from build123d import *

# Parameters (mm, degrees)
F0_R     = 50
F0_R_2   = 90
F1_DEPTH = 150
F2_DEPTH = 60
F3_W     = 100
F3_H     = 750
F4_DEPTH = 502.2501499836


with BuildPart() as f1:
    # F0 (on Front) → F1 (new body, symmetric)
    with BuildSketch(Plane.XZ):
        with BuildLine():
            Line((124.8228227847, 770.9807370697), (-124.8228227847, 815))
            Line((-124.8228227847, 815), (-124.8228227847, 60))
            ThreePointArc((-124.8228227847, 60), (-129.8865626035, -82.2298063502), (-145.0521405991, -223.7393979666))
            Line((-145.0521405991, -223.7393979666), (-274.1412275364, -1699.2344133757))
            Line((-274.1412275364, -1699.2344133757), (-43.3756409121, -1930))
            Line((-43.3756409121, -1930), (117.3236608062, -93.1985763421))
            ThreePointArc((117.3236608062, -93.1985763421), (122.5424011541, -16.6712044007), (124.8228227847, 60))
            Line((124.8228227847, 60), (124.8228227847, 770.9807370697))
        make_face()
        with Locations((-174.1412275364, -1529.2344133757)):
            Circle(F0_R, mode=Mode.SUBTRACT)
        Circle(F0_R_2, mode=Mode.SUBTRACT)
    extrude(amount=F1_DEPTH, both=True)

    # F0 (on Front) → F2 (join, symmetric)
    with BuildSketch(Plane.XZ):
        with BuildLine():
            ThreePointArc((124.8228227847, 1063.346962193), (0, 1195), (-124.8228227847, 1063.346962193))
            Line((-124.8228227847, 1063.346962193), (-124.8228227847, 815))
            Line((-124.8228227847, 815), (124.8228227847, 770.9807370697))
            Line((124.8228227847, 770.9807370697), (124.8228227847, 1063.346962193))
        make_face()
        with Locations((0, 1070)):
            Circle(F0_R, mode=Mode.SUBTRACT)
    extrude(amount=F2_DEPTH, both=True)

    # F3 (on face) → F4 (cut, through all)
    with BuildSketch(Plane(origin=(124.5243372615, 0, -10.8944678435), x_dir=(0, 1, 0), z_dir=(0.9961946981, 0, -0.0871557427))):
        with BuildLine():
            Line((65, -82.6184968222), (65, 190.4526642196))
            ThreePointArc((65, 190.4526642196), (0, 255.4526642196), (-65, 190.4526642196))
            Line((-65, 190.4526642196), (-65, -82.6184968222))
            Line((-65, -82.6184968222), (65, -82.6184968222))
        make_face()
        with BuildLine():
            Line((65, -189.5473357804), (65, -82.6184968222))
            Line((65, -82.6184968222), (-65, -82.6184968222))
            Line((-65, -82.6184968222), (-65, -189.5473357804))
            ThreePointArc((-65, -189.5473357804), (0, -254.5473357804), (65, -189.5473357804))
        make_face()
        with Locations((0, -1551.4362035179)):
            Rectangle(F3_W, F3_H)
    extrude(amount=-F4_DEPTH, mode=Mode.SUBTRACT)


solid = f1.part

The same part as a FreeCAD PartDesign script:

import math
import FreeCAD as App
import Part
import Sketcher
Q = App.Units.Quantity

doc = App.newDocument("Part")
body = doc.addObject("PartDesign::Body", "Body")

sketch1 = body.newObject("Sketcher::SketchObject", "Sketch")
sketch1.AttachmentSupport = (doc.getObject("XZ_Plane"), [""])
sketch1.MapMode = "FlatFace"
sketch1.addGeometry([
    Part.LineSegment(App.Vector(125, 771, 0), App.Vector(-125, 815, 0)),
    Part.LineSegment(App.Vector(-125, 815, 0), App.Vector(-125, 60, 0)),
    Part.ArcOfCircle(Part.Circle(App.Vector(-2125, 60, 0), App.Vector(0, 0, 1), 2000), math.radians(-8.16), math.radians(0)),
    Part.LineSegment(App.Vector(-145, -224, 0), App.Vector(-274, -1699, 0)),
    Part.LineSegment(App.Vector(-274, -1699, 0), App.Vector(-43, -1930, 0)),
    Part.LineSegment(App.Vector(-43, -1930, 0), App.Vector(117, -93, 0)),
    Part.ArcOfCircle(Part.Circle(App.Vector(-1875, 81, 0), App.Vector(0, 0, 1), 2000), math.radians(-5), math.radians(-0.6)),
    Part.LineSegment(App.Vector(125, 60, 0), App.Vector(125, 771, 0)),
    Part.Circle(App.Vector(-174, -1529, 0), App.Vector(0, 0, 1), 50),
    Part.Circle(App.Vector(0, 0, 0), App.Vector(0, 0, 1), 90),
], False)
sketch1.addConstraint([
    Sketcher.Constraint("Coincident", 0, 2, 1, 1),
    Sketcher.Constraint("Coincident", 1, 2, 2, 2),
    Sketcher.Constraint("Coincident", 2, 1, 3, 1),
    Sketcher.Constraint("Coincident", 3, 2, 4, 1),
    Sketcher.Constraint("Coincident", 4, 2, 5, 1),
    Sketcher.Constraint("Coincident", 5, 2, 6, 1),
    Sketcher.Constraint("Coincident", 6, 2, 7, 1),
    Sketcher.Constraint("Coincident", 7, 2, 0, 1),
    Sketcher.Constraint("Vertical", 1),
    Sketcher.Constraint("Vertical", 7),
    Sketcher.Constraint("Coincident", 9, 3, -1, 1),
    Sketcher.Constraint("Equal", 2, 6),
    Sketcher.Constraint("Parallel", 3, 5),
    Sketcher.Constraint("Horizontal", 2, 3, 1, 2),
    Sketcher.Constraint("Diameter", 8, Q("100 mm")),
    Sketcher.Constraint("Diameter", 9, Q("180 mm")),
    Sketcher.Constraint("Radius", 2, Q("2000 mm")),
    Sketcher.Constraint("DistanceY", 1, 2, 1, 1, Q("755 mm")),
    Sketcher.Constraint("Angle", 0, Q("170 deg")),
    Sketcher.Constraint("Angle", 3, Q("-95 deg")),
    Sketcher.Constraint("Angle", 4, Q("-45 deg")),
    Sketcher.Constraint("DistanceY", -1, 1, 2, 3, Q("60 mm")),
    Sketcher.Constraint("DistanceY", 4, 2, -1, 1, Q("1930 mm")),
    Sketcher.Constraint("DistanceX", 3, 2, 8, 3, Q("100 mm")),
    Sketcher.Constraint("DistanceY", 3, 2, 8, 3, Q("170 mm")),
    Sketcher.Constraint("DistanceY", 7, 1, 7, 2, Q("710.980737 mm")),
    Sketcher.Constraint("DistanceY", -1, 1, 6, 3, Q("81.112909 mm")),
    Sketcher.Constraint("DistanceX", 4, 2, -1, 1, Q("43.375641 mm")),
    Sketcher.Constraint("DistanceX", -1, 1, 5, 2, Q("117.323661 mm")),
    Sketcher.Constraint("DistanceX", 1, 2, 4, 2, Q("81.447182 mm")),
    Sketcher.Constraint("DistanceX", 8, 3, 5, 2, Q("291.464888 mm")),
])
pad1 = body.newObject("PartDesign::Pad", "Pad")
pad1.Profile = sketch1
pad1.Length = 300
pad1.Midplane = True

sketch2 = body.newObject("Sketcher::SketchObject", "Sketch001")
sketch2.AttachmentSupport = (doc.getObject("XZ_Plane"), [""])
sketch2.MapMode = "FlatFace"
sketch2.addGeometry([
    Part.ArcOfCircle(Part.Circle(App.Vector(0, 1070, 0), App.Vector(0, 0, 1), 125), math.radians(-3), math.radians(183)),
    Part.LineSegment(App.Vector(-125, 1063, 0), App.Vector(-125, 815, 0)),
    Part.LineSegment(App.Vector(-125, 815, 0), App.Vector(125, 771, 0)),
    Part.LineSegment(App.Vector(125, 771, 0), App.Vector(125, 1063, 0)),
    Part.Circle(App.Vector(0, 1070, 0), App.Vector(0, 0, 1), 50),
], False)
sketch2.addConstraint([
    Sketcher.Constraint("Coincident", 0, 2, 1, 1),
    Sketcher.Constraint("Coincident", 1, 2, 2, 1),
    Sketcher.Constraint("Coincident", 2, 2, 3, 1),
    Sketcher.Constraint("Coincident", 3, 2, 0, 1),
    Sketcher.Constraint("Vertical", 1),
    Sketcher.Constraint("Vertical", 3),
    Sketcher.Constraint("Coincident", 4, 3, 0, 3),
    Sketcher.Constraint("Symmetric", 0, 2, 3, 2, -2),
    Sketcher.Constraint("Diameter", 4, Q("100 mm")),
    Sketcher.Constraint("Radius", 0, Q("125 mm")),
    Sketcher.Constraint("Angle", 2, Q("-10 deg")),
    Sketcher.Constraint("DistanceY", -1, 1, 0, 3, Q("1070 mm")),
    Sketcher.Constraint("DistanceY", -1, 1, 1, 2, Q("815 mm")),
    Sketcher.Constraint("DistanceY", 1, 2, 1, 1, Q("248.346962 mm")),
])
pad2 = body.newObject("PartDesign::Pad", "Pad001")
pad2.Profile = sketch2
pad2.Length = 120
pad2.Midplane = True

sketch3 = body.newObject("Sketcher::SketchObject", "Sketch002")
sketch3.Placement = App.Placement(App.Vector(124.524337, 0, -10.894468), App.Rotation(App.Vector(0, 1, 0), App.Vector(0.087155743, 0, 0.996194698), App.Vector(0.996194698, 0, -0.087155743), "ZXY"))
sketch3.addGeometry([
    Part.ArcOfCircle(Part.Circle(App.Vector(0, 190, 0), App.Vector(0, 0, 1), 65), math.radians(0), math.radians(180)),
    Part.LineSegment(App.Vector(-65, 190, 0), App.Vector(-65, -190, 0)),
    Part.ArcOfCircle(Part.Circle(App.Vector(0, -190, 0), App.Vector(0, 0, 1), 65), math.radians(180), math.radians(360)),
    Part.LineSegment(App.Vector(65, -190, 0), App.Vector(65, 190, 0)),
    Part.LineSegment(App.Vector(-50, -1176, 0), App.Vector(-50, -1926, 0)),
    Part.LineSegment(App.Vector(-50, -1926, 0), App.Vector(50, -1926, 0)),
    Part.LineSegment(App.Vector(50, -1926, 0), App.Vector(50, -1176, 0)),
    Part.LineSegment(App.Vector(50, -1176, 0), App.Vector(-50, -1176, 0)),
], False)
sketch3.addConstraint([
    Sketcher.Constraint("Tangent", 0, 2, 1, 1),
    Sketcher.Constraint("Tangent", 1, 2, 2, 1),
    Sketcher.Constraint("Tangent", 2, 2, 3, 1),
    Sketcher.Constraint("Tangent", 3, 2, 0, 1),
    Sketcher.Constraint("Coincident", 4, 2, 5, 1),
    Sketcher.Constraint("Coincident", 5, 2, 6, 1),
    Sketcher.Constraint("Coincident", 6, 2, 7, 1),
    Sketcher.Constraint("Coincident", 7, 2, 4, 1),
    Sketcher.Constraint("Vertical", 1),
    Sketcher.Constraint("Vertical", 3),
    Sketcher.Constraint("Vertical", 4),
    Sketcher.Constraint("Horizontal", 5),
    Sketcher.Constraint("Vertical", 6),
    Sketcher.Constraint("Horizontal", 7),
    Sketcher.Constraint("PointOnObject", 0, 3, -2),
    Sketcher.Constraint("Radius", 0, Q("65 mm")),
    Sketcher.Constraint("DistanceX", 5, 1, 5, 2, Q("100 mm")),
    Sketcher.Constraint("DistanceY", 1, 2, 1, 1, Q("380 mm")),
    Sketcher.Constraint("DistanceY", 4, 2, 4, 1, Q("750 mm")),
    Sketcher.Constraint("DistanceX", 4, 2, -1, 1, Q("50 mm")),
    Sketcher.Constraint("DistanceY", -1, 1, 0, 3, Q("190.452664 mm")),
    Sketcher.Constraint("DistanceY", 4, 2, -1, 1, Q("1926.436203 mm")),
])
pocket1 = body.newObject("PartDesign::Pocket", "Pocket")
pocket1.Profile = sketch3
pocket1.Type = "ThroughAll"

doc.recompute()
